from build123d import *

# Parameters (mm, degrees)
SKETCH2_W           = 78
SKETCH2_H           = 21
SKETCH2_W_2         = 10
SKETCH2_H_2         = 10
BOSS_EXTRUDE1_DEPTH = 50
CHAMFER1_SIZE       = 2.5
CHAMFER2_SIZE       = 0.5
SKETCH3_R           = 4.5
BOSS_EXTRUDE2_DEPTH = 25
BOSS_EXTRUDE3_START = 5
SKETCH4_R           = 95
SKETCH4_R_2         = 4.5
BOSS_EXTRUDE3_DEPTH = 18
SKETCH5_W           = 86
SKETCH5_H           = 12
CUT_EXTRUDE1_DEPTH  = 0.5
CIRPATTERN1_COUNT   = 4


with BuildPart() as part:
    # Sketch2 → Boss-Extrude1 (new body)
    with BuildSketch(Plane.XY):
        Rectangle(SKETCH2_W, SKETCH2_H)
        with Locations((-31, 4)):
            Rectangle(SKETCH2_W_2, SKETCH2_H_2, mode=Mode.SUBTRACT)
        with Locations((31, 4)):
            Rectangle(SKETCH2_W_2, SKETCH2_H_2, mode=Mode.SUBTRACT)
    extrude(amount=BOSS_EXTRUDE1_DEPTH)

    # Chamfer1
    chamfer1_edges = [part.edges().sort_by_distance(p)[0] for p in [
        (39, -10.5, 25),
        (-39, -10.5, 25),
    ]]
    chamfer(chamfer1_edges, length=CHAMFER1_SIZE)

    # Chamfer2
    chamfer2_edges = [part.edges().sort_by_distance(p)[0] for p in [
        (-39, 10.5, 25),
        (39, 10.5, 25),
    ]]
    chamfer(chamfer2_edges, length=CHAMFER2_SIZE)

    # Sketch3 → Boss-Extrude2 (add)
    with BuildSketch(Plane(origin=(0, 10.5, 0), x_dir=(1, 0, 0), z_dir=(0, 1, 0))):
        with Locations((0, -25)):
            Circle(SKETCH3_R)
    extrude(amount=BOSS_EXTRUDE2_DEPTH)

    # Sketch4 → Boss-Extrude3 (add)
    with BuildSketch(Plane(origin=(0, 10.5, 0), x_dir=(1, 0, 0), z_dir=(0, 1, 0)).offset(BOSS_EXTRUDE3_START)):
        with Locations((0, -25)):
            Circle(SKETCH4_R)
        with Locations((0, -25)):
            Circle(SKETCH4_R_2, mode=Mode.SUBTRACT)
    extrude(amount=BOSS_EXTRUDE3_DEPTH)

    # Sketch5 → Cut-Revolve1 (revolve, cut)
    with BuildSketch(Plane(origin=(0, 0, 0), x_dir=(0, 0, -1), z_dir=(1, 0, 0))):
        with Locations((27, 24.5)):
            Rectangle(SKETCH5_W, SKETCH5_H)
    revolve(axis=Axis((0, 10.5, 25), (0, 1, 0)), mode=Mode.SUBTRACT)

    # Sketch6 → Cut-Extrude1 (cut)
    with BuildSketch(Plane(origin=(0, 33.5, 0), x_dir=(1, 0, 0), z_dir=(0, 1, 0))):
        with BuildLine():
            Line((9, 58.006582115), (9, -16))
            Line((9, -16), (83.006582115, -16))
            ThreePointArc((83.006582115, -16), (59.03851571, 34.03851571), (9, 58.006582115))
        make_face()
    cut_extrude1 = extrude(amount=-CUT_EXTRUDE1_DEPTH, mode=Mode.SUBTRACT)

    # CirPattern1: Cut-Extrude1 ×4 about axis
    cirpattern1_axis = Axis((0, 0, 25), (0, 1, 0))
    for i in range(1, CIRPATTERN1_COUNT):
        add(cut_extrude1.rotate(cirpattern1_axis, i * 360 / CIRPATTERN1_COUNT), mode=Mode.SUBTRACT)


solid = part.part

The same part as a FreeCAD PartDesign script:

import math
import FreeCAD as App
import Part
import Sketcher
from FreeCAD import Vector
Q = App.Units.Quantity


def edges_at(feature, points):
    """Names of the edges that pass closest to the given points."""
    edges = feature.Shape.Edges
    near = lambda p: min(range(len(edges)), key=lambda i: edges[i].distToShape(Part.Vertex(*p))[0])
    return sorted({f"Edge{near(p) + 1}" for p in points})

doc = App.newDocument("Part")
params = doc.addObject("Spreadsheet::Sheet", "Params")
for row, (alias, value) in enumerate([
    ("sketch1_width", "78 mm"),
    ("sketch1_width2", "10 mm"),
    ("sketch1_height", "21 mm"),
    ("pad1_length", "50 mm"),
    ("chamfer_size", "2.5 mm"),
    ("chamfer2_size", "0.5 mm"),
    ("sketch2_diameter", "9 mm"),
    ("pad2_length", "25 mm"),
    ("sketch3_diameter", "190 mm"),
    ("sketch3_diameter2", "9 mm"),
    ("pad3_length", "18 mm"),
    ("sketch4_width", "12 mm"),
    ("sketch4_height", "86 mm"),
    ("groove_angle", "360 deg"),
    ("pocket1_length", "0.5 mm"),
], start=1):
    params.set(f"A{row}", alias)
    params.set(f"B{row}", "=" + value)
    params.setAlias(f"B{row}", alias)

body = doc.addObject("PartDesign::Body", "Body")

sketch1 = body.newObject("Sketcher::SketchObject", "Sketch")
sketch1.AttachmentSupport = (doc.getObject("XY_Plane"), [""])
sketch1.MapMode = "FlatFace"
sketch1.addGeometry(Part.LineSegment(Vector(-39, 10, 0), Vector(-39, -10, 0)), False)
sketch1.addGeometry(Part.LineSegment(Vector(-39, -10, 0), Vector(39, -10, 0)), False)
sketch1.addGeometry(Part.LineSegment(Vector(39, -10, 0), Vector(39, 10, 0)), False)
sketch1.addGeometry(Part.LineSegment(Vector(39, 10, 0), Vector(-39, 10, 0)), False)
sketch1.addGeometry(Part.LineSegment(Vector(-26, -1, 0), Vector(-36, -1, 0)), False)
sketch1.addGeometry(Part.LineSegment(Vector(-36, -1, 0), Vector(-36, 9, 0)), False)
sketch1.addGeometry(Part.LineSegment(Vector(-36, 9, 0), Vector(-26, 9, 0)), False)
sketch1.addGeometry(Part.LineSegment(Vector(-26, 9, 0), Vector(-26, -1, 0)), False)
sketch1.addGeometry(Part.LineSegment(Vector(36, -1, 0), Vector(26, -1, 0)), False)
sketch1.addGeometry(Part.LineSegment(Vector(26, -1, 0), Vector(26, 9, 0)), False)
sketch1.addGeometry(Part.LineSegment(Vector(26, 9, 0), Vector(36, 9, 0)), False)
sketch1.addGeometry(Part.LineSegment(Vector(36, 9, 0), Vector(36, -1, 0)), False)
sketch1.addConstraint(Sketcher.Constraint("Coincident", 0, 2, 1, 1))
sketch1.addConstraint(Sketcher.Constraint("Coincident", 1, 2, 2, 1))
sketch1.addConstraint(Sketcher.Constraint("Coincident", 2, 2, 3, 1))
sketch1.addConstraint(Sketcher.Constraint("Coincident", 3, 2, 0, 1))
sketch1.addConstraint(Sketcher.Constraint("Coincident", 4, 2, 5, 1))
sketch1.addConstraint(Sketcher.Constraint("Coincident", 5, 2, 6, 1))
sketch1.addConstraint(Sketcher.Constraint("Coincident", 6, 2, 7, 1))
sketch1.addConstraint(Sketcher.Constraint("Coincident", 7, 2, 4, 1))
sketch1.addConstraint(Sketcher.Constraint("Coincident", 8, 2, 9, 1))
sketch1.addConstraint(Sketcher.Constraint("Coincident", 9, 2, 10, 1))
sketch1.addConstraint(Sketcher.Constraint("Coincident", 10, 2, 11, 1))
sketch1.addConstraint(Sketcher.Constraint("Coincident", 11, 2, 8, 1))
sketch1.addConstraint(Sketcher.Constraint("Vertical", 0))
sketch1.addConstraint(Sketcher.Constraint("Horizontal", 1))
sketch1.addConstraint(Sketcher.Constraint("Vertical", 2))
sketch1.addConstraint(Sketcher.Constraint("Horizontal", 3))
sketch1.addConstraint(Sketcher.Constraint("Horizontal", 4))
sketch1.addConstraint(Sketcher.Constraint("Vertical", 5))
sketch1.addConstraint(Sketcher.Constraint("Horizontal", 6))
sketch1.addConstraint(Sketcher.Constraint("Vertical", 7))
sketch1.addConstraint(Sketcher.Constraint("Horizontal", 8))
sketch1.addConstraint(Sketcher.Constraint("Vertical", 9))
sketch1.addConstraint(Sketcher.Constraint("Horizontal", 10))
sketch1.addConstraint(Sketcher.Constraint("Vertical", 11))
sketch1.addConstraint(Sketcher.Constraint("Symmetric", 0, 2, 2, 2, -1, 1))
sketch1.addConstraint(Sketcher.Constraint("Symmetric", 7, 2, 8, 2, -2))
sketch1.addConstraint(Sketcher.Constraint("Symmetric", 5, 2, 10, 2, -2))
sketch1.addConstraint(Sketcher.Constraint("Equal", 10, 5))
sketch1.addConstraint(Sketcher.Constraint("DistanceX", 1, 1, 1, 2, Q("78 mm")))
sketch1.addConstraint(Sketcher.Constraint("DistanceX", 4, 2, 4, 1, Q("10 mm")))
sketch1.addConstraint(Sketcher.Constraint("DistanceY", 0, 2, 0, 1, Q("21 mm")))
sketch1.addConstraint(Sketcher.Constraint("DistanceX", 4, 2, -1, 1, Q("36 mm")))
sketch1.addConstraint(Sketcher.Constraint("DistanceY", 4, 2, -1, 1, Q("1 mm")))
sketch1.setExpression("Constraints[28]", "Params.sketch1_width")
sketch1.setExpression("Constraints[29]", "Params.sketch1_width2")
sketch1.setExpression("Constraints[30]", "Params.sketch1_height")
pad1 = body.newObject("PartDesign::Pad", "Pad")
pad1.Profile = sketch1
pad1.setExpression("Length", "Params.pad1_length")
doc.recompute()

chamfer = body.newObject("PartDesign::Chamfer", "Chamfer")
chamfer.Base = (pad1, edges_at(pad1, [(39, -10.5, 25), (-39, -10.5, 25)]))
chamfer.setExpression("Size", "Params.chamfer_size")
doc.recompute()

chamfer2 = body.newObject("PartDesign::Chamfer", "Chamfer001")
chamfer2.Base = (chamfer, edges_at(chamfer, [(-39, 10.5, 25), (39, 10.5, 25)]))
chamfer2.setExpression("Size", "Params.chamfer2_size")

sketch2 = body.newObject("Sketcher::SketchObject", "Sketch001")
sketch2.AttachmentSupport = (doc.getObject("XZ_Plane"), [""])
sketch2.MapMode = "FlatFace"
sketch2.AttachmentOffset = App.Placement(Vector(0, 0, -10.5), App.Rotation())
sketch2.addGeometry(Part.Circle(Vector(0, 25, 0), Vector(0, 0, 1), 4.5), False)
sketch2.addConstraint(Sketcher.Constraint("PointOnObject", 0, 3, -2))
sketch2.addConstraint(Sketcher.Constraint("Diameter", 0, Q("9 mm")))
sketch2.addConstraint(Sketcher.Constraint("DistanceY", -1, 1, 0, 3, Q("25 mm")))
sketch2.setExpression("Constraints[1]", "Params.sketch2_diameter")
pad2 = body.newObject("PartDesign::Pad", "Pad001")
pad2.Profile = sketch2
pad2.setExpression("Length", "Params.pad2_length")
pad2.Reversed = True

sketch3 = body.newObject("Sketcher::SketchObject", "Sketch002")
sketch3.AttachmentSupport = (doc.getObject("XZ_Plane"), [""])
sketch3.MapMode = "FlatFace"
sketch3.AttachmentOffset = App.Placement(Vector(0, 0, -15.5), App.Rotation())
sketch3.addGeometry(Part.Circle(Vector(0, 25, 0), Vector(0, 0, 1), 95), False)
sketch3.addGeometry(Part.Circle(Vector(0, 25, 0), Vector(0, 0, 1), 4.5), False)
sketch3.addConstraint(Sketcher.Constraint("Coincident", 1, 3, 0, 3))
sketch3.addConstraint(Sketcher.Constraint("PointOnObject", 0, 3, -2))
sketch3.addConstraint(Sketcher.Constraint("Diameter", 0, Q("190 mm")))
sketch3.addConstraint(Sketcher.Constraint("Diameter", 1, Q("9 mm")))
sketch3.addConstraint(Sketcher.Constraint("DistanceY", -1, 1, 0, 3, Q("25 mm")))
sketch3.setExpression("Constraints[2]", "Params.sketch3_diameter")
sketch3.setExpression("Constraints[3]", "Params.sketch3_diameter2")
pad3 = body.newObject("PartDesign::Pad", "Pad002")
pad3.Profile = sketch3
pad3.setExpression("Length", "Params.pad3_length")
pad3.Reversed = True

sketch4 = body.newObject("Sketcher::SketchObject", "Sketch003")
sketch4.AttachmentSupport = (doc.getObject("YZ_Plane"), [""])
sketch4.MapMode = "FlatFace"
sketch4.addGeometry(Part.LineSegment(Vector(30, 16, 0), Vector(18, 16, 0)), False)
sketch4.addGeometry(Part.LineSegment(Vector(18, 16, 0), Vector(18, -70, 0)), False)
sketch4.addGeometry(Part.LineSegment(Vector(18, -70, 0), Vector(30, -70, 0)), False)
sketch4.addGeometry(Part.LineSegment(Vector(30, -70, 0), Vector(30, 16, 0)), False)
sketch4.addGeometry(Part.LineSegment(Vector(18, 25, 0), Vector(30, 25, 0)), True)
sketch4.addConstraint(Sketcher.Constraint("Coincident", 0, 2, 1, 1))
sketch4.addConstraint(Sketcher.Constraint("Coincident", 1, 2, 2, 1))
sketch4.addConstraint(Sketcher.Constraint("Coincident", 2, 2, 3, 1))
sketch4.addConstraint(Sketcher.Constraint("Coincident", 3, 2, 0, 1))
sketch4.addConstraint(Sketcher.Constraint("Horizontal", 0))
sketch4.addConstraint(Sketcher.Constraint("Vertical", 1))
sketch4.addConstraint(Sketcher.Constraint("Horizontal", 2))
sketch4.addConstraint(Sketcher.Constraint("Vertical", 3))
sketch4.addConstraint(Sketcher.Constraint("Horizontal", 4))
sketch4.addConstraint(Sketcher.Constraint("Vertical", 1, 2, 4, 1))
sketch4.addConstraint(Sketcher.Constraint("Vertical", 3, 2, 4, 2))
sketch4.addConstraint(Sketcher.Constraint("DistanceX", 0, 2, 0, 1, Q("12 mm")))
sketch4.addConstraint(Sketcher.Constraint("DistanceY", 1, 2, 1, 1, Q("86 mm")))
sketch4.addConstraint(Sketcher.Constraint("DistanceY", -1, 1, 0, 2, Q("16 mm")))
sketch4.addConstraint(Sketcher.Constraint("DistanceY", -1, 1, 4, 1, Q("25 mm")))
sketch4.addConstraint(Sketcher.Constraint("DistanceX", -1, 1, 0, 2, Q("18.5 mm")))
sketch4.setExpression("Constraints[11]", "Params.sketch4_width")
sketch4.setExpression("Constraints[12]", "Params.sketch4_height")
groove = body.newObject("PartDesign::Groove", "Groove")
groove.Profile = sketch4
groove.ReferenceAxis = (sketch4, ["Axis0"])
groove.setExpression("Angle", "Params.groove_angle")

sketch5 = body.newObject("Sketcher::SketchObject", "Sketch004")
sketch5.AttachmentSupport = (doc.getObject("XZ_Plane"), [""])
sketch5.MapMode = "FlatFace"
sketch5.AttachmentOffset = App.Placement(Vector(0, 0, -33.5), App.Rotation())
sketch5.addGeometry(Part.LineSegment(Vector(9, -58, 0), Vector(9, 16, 0)), False)
sketch5.addGeometry(Part.LineSegment(Vector(9, 16, 0), Vector(83, 16, 0)), False)
sketch5.addGeometry(Part.ArcOfCircle(Part.Circle(Vector(0, 25, 0), Vector(0, 0, 1), 83), math.radians(-84), math.radians(-6)), False)
sketch5.addConstraint(Sketcher.Constraint("Coincident", 0, 2, 1, 1))
sketch5.addConstraint(Sketcher.Constraint("Coincident", 1, 2, 2, 2))
sketch5.addConstraint(Sketcher.Constraint("Coincident", 2, 1, 0, 1))
sketch5.addConstraint(Sketcher.Constraint("Vertical", 0))
sketch5.addConstraint(Sketcher.Constraint("Horizontal", 1))
sketch5.addConstraint(Sketcher.Constraint("PointOnObject", 2, 3, -2))
sketch5.addConstraint(Sketcher.Constraint("Equal", 1, 0))
sketch5.addConstraint(Sketcher.Constraint("DistanceY", -1, 1, 2, 3, Q("25 mm")))
sketch5.addConstraint(Sketcher.Constraint("DistanceX", -1, 1, 0, 2, Q("9 mm")))
sketch5.addConstraint(Sketcher.Constraint("Radius", 2, Q("83.49307 mm")))
pocket1 = body.newObject("PartDesign::Pocket", "Pocket")
pocket1.Profile = sketch5
pocket1.setExpression("Length", "Params.pocket1_length")
pocket1.Reversed = True
doc.recompute()

datumline = body.newObject("PartDesign::Line", "DatumLine")
datumline.Placement = App.Placement(Vector(0, 0, 25), App.Rotation(Vector(0, 0, 1), Vector(0, 1, 0)))
polarpattern = body.newObject("PartDesign::PolarPattern", "PolarPattern")
polarpattern.Originals = [pocket1]
polarpattern.Axis = (datumline, [""])
polarpattern.Angle = 360
polarpattern.Occurrences = 4
body.Tip = polarpattern

doc.recompute()
